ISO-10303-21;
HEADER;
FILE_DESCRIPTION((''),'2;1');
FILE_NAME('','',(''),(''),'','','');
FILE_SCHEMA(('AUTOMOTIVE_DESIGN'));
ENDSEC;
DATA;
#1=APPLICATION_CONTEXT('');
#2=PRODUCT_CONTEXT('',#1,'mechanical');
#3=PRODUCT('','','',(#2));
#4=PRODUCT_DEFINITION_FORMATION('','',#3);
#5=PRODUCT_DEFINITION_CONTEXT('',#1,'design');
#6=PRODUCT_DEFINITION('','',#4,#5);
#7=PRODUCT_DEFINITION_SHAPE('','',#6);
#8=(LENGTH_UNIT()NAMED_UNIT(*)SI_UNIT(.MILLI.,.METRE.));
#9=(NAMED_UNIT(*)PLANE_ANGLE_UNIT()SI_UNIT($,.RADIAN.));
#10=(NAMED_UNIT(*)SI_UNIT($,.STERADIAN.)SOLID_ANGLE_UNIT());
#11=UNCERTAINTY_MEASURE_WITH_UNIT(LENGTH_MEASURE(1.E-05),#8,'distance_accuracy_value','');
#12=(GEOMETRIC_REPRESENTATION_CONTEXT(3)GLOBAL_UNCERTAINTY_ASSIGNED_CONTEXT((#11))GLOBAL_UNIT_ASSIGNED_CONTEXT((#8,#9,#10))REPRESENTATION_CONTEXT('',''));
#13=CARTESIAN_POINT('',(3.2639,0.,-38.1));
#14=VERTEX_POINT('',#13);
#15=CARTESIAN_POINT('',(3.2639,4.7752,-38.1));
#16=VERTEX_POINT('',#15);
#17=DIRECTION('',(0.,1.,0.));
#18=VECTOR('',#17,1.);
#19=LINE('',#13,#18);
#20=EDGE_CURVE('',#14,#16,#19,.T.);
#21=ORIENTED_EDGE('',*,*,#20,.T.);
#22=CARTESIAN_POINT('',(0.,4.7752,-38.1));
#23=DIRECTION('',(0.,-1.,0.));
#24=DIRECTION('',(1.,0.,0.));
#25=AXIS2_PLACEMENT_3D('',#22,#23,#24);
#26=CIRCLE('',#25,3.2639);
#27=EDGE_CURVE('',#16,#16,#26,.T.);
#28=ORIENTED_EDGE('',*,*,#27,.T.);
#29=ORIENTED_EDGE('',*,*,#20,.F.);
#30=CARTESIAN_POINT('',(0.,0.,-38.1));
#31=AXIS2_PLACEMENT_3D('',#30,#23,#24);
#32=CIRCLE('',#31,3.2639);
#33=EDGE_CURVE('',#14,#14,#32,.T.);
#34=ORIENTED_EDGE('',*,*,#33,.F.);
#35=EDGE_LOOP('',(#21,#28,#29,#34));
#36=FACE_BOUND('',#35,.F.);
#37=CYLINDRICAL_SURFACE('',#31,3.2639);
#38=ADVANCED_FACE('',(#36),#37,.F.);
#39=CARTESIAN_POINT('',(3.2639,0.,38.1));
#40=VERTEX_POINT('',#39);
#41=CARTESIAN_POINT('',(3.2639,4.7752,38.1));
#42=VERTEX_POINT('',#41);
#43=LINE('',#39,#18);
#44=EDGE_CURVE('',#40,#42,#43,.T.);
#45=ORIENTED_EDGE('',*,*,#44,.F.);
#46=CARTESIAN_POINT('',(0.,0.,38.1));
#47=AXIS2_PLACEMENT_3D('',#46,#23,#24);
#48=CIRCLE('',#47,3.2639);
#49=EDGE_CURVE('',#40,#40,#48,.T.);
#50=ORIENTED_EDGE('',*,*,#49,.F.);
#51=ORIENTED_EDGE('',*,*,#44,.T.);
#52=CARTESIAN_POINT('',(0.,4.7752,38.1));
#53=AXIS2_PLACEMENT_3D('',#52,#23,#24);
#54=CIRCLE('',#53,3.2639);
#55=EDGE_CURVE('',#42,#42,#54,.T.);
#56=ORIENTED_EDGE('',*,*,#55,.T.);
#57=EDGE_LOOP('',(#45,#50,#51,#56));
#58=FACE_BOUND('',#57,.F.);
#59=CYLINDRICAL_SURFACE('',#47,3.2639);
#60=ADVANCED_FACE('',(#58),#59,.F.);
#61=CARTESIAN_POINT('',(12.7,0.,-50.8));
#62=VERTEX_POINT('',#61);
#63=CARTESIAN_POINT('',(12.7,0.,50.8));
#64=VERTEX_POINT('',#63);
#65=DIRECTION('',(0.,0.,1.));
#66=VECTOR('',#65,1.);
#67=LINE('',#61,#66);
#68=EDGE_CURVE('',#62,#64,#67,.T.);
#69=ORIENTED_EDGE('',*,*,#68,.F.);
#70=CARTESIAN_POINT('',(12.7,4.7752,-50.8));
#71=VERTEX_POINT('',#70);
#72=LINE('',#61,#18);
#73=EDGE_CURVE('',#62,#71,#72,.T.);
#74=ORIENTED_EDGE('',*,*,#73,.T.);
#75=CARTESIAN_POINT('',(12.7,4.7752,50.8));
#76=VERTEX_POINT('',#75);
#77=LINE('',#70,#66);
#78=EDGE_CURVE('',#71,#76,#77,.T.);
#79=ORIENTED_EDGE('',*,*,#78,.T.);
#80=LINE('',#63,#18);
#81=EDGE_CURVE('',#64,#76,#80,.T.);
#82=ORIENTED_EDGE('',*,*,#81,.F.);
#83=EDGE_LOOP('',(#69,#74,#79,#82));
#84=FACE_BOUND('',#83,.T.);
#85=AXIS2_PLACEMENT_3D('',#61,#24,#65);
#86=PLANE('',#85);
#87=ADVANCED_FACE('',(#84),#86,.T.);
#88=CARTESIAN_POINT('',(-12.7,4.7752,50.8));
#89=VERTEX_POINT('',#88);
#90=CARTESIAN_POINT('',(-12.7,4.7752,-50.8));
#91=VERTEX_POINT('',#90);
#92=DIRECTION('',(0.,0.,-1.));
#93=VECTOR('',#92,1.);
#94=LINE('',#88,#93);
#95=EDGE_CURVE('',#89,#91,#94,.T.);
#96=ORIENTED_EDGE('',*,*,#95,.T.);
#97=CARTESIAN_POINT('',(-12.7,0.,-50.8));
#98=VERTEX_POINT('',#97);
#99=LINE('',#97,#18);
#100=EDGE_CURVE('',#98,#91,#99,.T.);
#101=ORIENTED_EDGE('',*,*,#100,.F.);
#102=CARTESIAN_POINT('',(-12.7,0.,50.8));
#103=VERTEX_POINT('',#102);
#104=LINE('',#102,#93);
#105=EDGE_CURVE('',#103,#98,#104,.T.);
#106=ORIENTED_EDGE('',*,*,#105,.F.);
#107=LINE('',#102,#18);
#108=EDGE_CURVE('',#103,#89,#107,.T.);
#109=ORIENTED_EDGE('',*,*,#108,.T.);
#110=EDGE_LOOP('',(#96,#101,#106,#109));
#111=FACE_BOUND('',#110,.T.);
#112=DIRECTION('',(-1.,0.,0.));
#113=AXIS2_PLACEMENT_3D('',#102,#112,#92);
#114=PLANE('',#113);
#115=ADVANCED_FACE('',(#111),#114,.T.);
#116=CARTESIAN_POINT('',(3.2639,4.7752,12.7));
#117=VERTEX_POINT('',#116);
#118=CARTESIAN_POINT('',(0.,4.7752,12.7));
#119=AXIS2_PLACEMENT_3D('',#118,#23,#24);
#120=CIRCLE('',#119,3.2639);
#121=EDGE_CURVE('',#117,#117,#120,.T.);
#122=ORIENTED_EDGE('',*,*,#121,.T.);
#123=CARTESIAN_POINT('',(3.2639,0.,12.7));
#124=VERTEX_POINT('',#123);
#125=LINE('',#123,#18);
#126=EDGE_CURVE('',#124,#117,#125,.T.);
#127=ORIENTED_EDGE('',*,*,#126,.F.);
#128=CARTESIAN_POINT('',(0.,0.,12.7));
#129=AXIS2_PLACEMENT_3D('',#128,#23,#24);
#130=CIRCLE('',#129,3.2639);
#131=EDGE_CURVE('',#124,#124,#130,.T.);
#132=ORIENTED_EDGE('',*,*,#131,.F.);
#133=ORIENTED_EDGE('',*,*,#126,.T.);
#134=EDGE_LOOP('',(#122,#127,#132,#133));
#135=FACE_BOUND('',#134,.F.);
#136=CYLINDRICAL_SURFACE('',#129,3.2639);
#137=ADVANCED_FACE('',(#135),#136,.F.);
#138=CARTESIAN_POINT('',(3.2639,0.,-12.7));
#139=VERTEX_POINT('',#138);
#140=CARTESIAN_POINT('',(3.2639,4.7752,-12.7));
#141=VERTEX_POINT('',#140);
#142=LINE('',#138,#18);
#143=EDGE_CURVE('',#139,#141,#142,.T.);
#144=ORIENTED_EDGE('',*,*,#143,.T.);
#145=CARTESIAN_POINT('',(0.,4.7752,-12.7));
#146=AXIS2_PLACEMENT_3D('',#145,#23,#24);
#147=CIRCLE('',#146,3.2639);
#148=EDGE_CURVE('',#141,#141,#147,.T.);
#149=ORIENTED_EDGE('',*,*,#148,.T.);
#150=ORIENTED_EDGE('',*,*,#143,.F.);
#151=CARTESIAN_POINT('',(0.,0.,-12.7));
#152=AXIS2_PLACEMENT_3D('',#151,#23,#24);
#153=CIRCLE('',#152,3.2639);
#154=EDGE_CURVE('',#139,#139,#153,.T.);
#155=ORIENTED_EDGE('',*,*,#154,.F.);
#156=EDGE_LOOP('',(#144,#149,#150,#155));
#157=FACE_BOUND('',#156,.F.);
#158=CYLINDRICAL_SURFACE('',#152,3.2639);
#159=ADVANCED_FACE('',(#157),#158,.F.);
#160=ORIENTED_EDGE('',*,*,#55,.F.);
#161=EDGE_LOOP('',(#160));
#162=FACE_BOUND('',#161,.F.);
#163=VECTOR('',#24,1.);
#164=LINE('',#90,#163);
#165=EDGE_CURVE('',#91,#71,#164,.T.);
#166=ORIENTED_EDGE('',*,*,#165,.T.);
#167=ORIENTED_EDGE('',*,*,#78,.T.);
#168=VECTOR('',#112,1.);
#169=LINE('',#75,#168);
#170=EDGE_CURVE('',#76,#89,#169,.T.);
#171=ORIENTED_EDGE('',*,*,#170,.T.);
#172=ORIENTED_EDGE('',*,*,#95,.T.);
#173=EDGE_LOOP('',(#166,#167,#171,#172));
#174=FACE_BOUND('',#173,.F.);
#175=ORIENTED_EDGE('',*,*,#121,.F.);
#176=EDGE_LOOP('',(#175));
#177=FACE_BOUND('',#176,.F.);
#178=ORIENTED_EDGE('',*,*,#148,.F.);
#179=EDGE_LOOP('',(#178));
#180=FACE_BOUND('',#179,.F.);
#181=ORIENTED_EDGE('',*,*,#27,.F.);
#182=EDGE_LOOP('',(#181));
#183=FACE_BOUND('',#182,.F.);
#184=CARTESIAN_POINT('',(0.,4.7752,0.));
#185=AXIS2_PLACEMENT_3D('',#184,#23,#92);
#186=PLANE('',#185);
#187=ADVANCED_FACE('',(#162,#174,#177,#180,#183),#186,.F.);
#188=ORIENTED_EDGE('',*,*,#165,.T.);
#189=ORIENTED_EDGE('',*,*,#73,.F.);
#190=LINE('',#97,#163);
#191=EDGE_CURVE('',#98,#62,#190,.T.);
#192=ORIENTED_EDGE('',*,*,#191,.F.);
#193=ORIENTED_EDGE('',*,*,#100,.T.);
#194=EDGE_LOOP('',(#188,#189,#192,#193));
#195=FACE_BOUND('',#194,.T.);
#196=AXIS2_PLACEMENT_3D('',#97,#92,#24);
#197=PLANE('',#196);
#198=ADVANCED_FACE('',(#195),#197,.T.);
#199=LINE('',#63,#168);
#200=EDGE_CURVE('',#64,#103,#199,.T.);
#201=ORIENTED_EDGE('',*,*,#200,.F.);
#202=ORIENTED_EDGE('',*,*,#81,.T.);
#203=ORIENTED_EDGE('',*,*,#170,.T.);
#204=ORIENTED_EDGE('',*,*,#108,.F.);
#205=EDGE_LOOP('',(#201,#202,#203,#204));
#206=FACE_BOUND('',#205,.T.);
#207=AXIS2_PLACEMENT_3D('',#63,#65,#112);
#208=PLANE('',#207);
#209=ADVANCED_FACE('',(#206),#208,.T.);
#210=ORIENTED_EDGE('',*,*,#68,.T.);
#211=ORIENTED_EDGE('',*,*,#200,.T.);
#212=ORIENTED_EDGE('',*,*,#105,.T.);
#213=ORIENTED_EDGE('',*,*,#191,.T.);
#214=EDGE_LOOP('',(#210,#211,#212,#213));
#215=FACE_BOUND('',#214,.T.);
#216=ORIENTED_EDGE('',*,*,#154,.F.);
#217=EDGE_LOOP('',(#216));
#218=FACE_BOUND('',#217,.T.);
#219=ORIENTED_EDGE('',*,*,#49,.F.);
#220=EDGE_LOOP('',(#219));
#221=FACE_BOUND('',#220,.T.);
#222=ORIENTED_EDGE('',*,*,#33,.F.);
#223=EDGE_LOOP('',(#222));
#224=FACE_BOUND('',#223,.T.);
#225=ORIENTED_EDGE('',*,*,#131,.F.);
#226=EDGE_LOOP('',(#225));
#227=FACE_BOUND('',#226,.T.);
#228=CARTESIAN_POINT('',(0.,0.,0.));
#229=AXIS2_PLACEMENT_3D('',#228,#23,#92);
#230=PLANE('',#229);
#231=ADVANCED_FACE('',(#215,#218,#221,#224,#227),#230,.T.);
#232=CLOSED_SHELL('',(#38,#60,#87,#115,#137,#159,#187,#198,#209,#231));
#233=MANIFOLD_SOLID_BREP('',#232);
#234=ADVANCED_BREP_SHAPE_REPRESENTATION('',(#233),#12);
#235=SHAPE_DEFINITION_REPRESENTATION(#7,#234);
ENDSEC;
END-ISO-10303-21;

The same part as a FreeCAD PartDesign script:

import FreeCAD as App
import Part
import Sketcher
from FreeCAD import Vector
Q = App.Units.Quantity


def add_polygon(sketch, points):
    """Adds a closed chain of lines whose ends are joined by coincident constraints."""
    first, n = sketch.GeometryCount, len(points)
    for a, b in zip(points, points[1:] + points[:1]):
        sketch.addGeometry(Part.LineSegment(App.Vector(*a, 0), App.Vector(*b, 0)), False)
    for i in range(n):
        sketch.addConstraint(Sketcher.Constraint("Coincident", first + i, 2, first + (i + 1) % n, 1))

doc = App.newDocument("Part")
body = doc.addObject("PartDesign::Body", "Body")

# Sketch on XZ plane
sketch1 = body.newObject("Sketcher::SketchObject", "Sketch")
sketch1.AttachmentSupport = (doc.getObject("XZ_Plane"), [""])
sketch1.MapMode = "FlatFace"
add_polygon(sketch1, [(12.7, -50.8), (12.7, 50.8), (-12.7, 50.8), (-12.7, -50.8)])  # lines 0-3
sketch1.addGeometry(Part.Circle(Vector(0, -38.1, 0), Vector(0, 0, 1), 3.3), False)  # 4
sketch1.addGeometry(Part.Circle(Vector(0, -12.7, 0), Vector(0, 0, 1), 3.3), False)  # 5
sketch1.addGeometry(Part.Circle(Vector(0, 12.7, 0), Vector(0, 0, 1), 3.3), False)  # 6
sketch1.addGeometry(Part.Circle(Vector(0, 38.1, 0), Vector(0, 0, 1), 3.3), False)  # 7
sketch1.addConstraint([
    Sketcher.Constraint("Vertical", 0),
    Sketcher.Constraint("Horizontal", 1),
    Sketcher.Constraint("Vertical", 2),
    Sketcher.Constraint("Horizontal", 3),
    Sketcher.Constraint("Equal", 4, 5),
    Sketcher.Constraint("Equal", 5, 6),
    Sketcher.Constraint("Equal", 6, 7),
    Sketcher.Constraint("Symmetric", 5, 3, 6, 3, -1, 1),
    Sketcher.Constraint("Symmetric", 4, 3, 7, 3, -1, 1),
    Sketcher.Constraint("Symmetric", 0, 2, 2, 2, -1, 1),
    Sketcher.Constraint("PointOnObject", 4, 3, -2),
    Sketcher.Constraint("PointOnObject", 5, 3, -2),
    Sketcher.Constraint("DistanceX", 1, 2, 1, 1, Q("1 in")),
    Sketcher.Constraint("DistanceY", 0, 1, 0, 2, Q("4 in")),
    Sketcher.Constraint("Diameter", 4, Q("0.257 in")),
    Sketcher.Constraint("DistanceY", 4, 3, 5, 3, Q("1 in")),
    Sketcher.Constraint("DistanceY", 5, 3, 6, 3, Q("1 in")),
])
pad1 = body.newObject("PartDesign::Pad", "Pad")
pad1.Profile = sketch1
pad1.Length = Q("0.188 in")
pad1.Reversed = True

doc.recompute()
